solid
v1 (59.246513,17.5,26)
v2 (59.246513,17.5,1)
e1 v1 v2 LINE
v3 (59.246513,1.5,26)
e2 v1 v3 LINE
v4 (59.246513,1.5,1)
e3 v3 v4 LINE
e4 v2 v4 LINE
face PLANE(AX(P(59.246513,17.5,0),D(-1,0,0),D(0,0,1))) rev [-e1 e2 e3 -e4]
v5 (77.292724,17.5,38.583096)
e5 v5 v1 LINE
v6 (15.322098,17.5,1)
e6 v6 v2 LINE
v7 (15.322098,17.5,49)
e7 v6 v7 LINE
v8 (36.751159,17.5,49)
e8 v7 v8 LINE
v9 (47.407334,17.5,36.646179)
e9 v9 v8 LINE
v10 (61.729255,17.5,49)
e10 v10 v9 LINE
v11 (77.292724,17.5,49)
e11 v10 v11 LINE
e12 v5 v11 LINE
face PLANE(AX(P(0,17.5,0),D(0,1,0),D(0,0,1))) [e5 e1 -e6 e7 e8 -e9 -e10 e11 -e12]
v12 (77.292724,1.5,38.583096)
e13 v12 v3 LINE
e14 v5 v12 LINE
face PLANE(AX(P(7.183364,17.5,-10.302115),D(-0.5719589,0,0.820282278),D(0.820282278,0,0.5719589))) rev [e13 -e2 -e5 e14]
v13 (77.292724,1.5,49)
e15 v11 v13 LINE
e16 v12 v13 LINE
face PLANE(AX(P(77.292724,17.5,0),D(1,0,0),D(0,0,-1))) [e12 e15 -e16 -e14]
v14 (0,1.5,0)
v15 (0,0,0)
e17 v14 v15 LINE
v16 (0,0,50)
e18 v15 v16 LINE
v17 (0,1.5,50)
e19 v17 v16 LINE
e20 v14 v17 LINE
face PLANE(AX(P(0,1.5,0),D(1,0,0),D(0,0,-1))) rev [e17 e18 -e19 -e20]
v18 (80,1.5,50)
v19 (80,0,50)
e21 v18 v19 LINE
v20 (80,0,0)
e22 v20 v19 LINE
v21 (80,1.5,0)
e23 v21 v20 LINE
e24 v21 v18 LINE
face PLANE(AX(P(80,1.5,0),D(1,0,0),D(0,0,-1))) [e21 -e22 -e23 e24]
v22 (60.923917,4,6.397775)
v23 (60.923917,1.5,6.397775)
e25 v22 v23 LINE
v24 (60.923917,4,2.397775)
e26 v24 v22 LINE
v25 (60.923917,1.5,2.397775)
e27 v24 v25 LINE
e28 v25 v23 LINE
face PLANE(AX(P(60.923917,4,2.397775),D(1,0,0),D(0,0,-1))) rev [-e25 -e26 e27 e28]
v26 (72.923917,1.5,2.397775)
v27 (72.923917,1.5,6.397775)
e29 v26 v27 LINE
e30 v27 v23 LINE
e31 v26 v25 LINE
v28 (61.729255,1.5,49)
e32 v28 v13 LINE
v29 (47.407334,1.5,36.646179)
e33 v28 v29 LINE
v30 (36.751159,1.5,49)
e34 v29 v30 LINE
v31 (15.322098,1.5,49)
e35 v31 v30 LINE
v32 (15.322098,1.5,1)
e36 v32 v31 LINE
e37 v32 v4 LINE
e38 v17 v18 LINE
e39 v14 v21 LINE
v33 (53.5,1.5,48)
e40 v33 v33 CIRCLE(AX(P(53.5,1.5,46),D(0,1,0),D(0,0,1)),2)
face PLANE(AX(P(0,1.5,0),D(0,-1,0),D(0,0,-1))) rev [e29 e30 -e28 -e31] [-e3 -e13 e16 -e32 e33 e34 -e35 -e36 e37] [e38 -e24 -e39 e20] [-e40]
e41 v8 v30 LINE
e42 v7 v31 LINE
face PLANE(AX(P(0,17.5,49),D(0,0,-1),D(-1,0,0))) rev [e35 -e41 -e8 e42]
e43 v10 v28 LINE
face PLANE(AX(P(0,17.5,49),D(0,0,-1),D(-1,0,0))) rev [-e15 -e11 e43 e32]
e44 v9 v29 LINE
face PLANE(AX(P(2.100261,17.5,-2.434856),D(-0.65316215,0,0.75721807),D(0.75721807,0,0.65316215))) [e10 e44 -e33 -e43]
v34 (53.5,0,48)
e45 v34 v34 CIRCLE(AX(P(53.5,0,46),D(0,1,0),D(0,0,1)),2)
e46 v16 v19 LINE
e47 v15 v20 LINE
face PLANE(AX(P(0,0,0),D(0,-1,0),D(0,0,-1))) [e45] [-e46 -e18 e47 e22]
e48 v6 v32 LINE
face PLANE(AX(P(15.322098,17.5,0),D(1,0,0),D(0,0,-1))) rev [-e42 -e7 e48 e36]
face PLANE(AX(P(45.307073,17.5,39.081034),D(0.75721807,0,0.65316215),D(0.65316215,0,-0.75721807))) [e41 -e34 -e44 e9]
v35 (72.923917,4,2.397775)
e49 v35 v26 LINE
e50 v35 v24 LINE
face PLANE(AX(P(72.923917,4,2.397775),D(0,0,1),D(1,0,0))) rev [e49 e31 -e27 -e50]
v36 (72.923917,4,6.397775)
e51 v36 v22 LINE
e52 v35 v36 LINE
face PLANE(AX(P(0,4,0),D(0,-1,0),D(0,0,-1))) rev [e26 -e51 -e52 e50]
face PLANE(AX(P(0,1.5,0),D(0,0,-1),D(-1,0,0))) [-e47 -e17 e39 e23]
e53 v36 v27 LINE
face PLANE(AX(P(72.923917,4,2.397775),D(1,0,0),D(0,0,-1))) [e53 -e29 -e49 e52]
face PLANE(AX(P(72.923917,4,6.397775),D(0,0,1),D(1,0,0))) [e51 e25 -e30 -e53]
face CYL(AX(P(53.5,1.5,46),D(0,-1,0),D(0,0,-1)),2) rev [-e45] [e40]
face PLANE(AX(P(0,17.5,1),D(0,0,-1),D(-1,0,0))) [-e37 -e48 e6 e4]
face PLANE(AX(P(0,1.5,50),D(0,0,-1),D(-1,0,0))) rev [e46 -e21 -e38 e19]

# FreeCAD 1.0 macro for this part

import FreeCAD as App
import Part
import Sketcher

doc = App.newDocument("Part")
params = doc.addObject("Spreadsheet::Sheet", "Params")
for row, (alias, value) in enumerate([
    ("sketch1_diameter", "4 mm"),
    ("sketch1_width", "80 mm"),
    ("sketch1_height", "50 mm"),
    ("pad1_length", "1.5 mm"),
    ("sketch2_height", "25 mm"),
    ("sketch2_height2", "48 mm"),
    ("sketch2_length", "22 mm"),
    ("pad2_length", "17.5 mm"),
    ("sketch3_width", "12 mm"),
    ("sketch3_height", "4 mm"),
    ("pad3_length", "4 mm"),
], start=1):
    params.set(f"A{row}", alias)
    params.set(f"B{row}", "=" + value)
    params.setAlias(f"B{row}", alias)

body = doc.addObject("PartDesign::Body", "Body")

sketch1 = body.newObject("Sketcher::SketchObject", "Sketch")
sketch1.AttachmentSupport = (doc.getObject("XZ_Plane"), [""])
sketch1.MapMode = "FlatFace"
sketch1.addGeometry([
    Part.LineSegment(App.Vector(0, 0, 0), App.Vector(0, 50, 0)),
    Part.LineSegment(App.Vector(0, 50, 0), App.Vector(80, 50, 0)),
    Part.LineSegment(App.Vector(80, 50, 0), App.Vector(80, 0, 0)),
    Part.LineSegment(App.Vector(80, 0, 0), App.Vector(0, 0, 0)),
    Part.Circle(App.Vector(53.5, 46, 0), App.Vector(0, 0, 1), 2),
], False)
sketch1.addConstraint([
    Sketcher.Constraint("Coincident", 0, 2, 1, 1),
    Sketcher.Constraint("Coincident", 1, 2, 2, 1),
    Sketcher.Constraint("Coincident", 2, 2, 3, 1),
    Sketcher.Constraint("Coincident", 3, 2, 0, 1),
    Sketcher.Constraint("Vertical", 0),
    Sketcher.Constraint("Horizontal", 1),
    Sketcher.Constraint("Vertical", 2),
    Sketcher.Constraint("Horizontal", 3),
    Sketcher.Constraint("Coincident", 3, 2, -1, 1),
    Sketcher.Constraint("Diameter", 4, 4.0),
    Sketcher.Constraint("DistanceX", 1, 1, 1, 2, 80.0),
    Sketcher.Constraint("DistanceY", 0, 1, 0, 2, 50.0),
    Sketcher.Constraint("DistanceY", -1, 1, 4, 3, 46.0),
    Sketcher.Constraint("DistanceX", -1, 1, 4, 3, 53.5),
])
sketch1.setExpression("Constraints[9]", "Params.sketch1_diameter")
sketch1.setExpression("Constraints[10]", "Params.sketch1_width")
sketch1.setExpression("Constraints[11]", "Params.sketch1_height")
pad1 = body.newObject("PartDesign::Pad", "Pad")
pad1.Profile = sketch1
pad1.setExpression("Length", "Params.pad1_length")
pad1.Reversed = True

sketch2 = body.newObject("Sketcher::SketchObject", "Sketch001")
sketch2.AttachmentSupport = (doc.getObject("XZ_Plane"), [""])
sketch2.MapMode = "FlatFace"
sketch2.addGeometry([
    Part.LineSegment(App.Vector(47.407334, 36.646179, 0), App.Vector(61.729255, 49, 0)),
    Part.LineSegment(App.Vector(61.729255, 49, 0), App.Vector(77.292724, 49, 0)),
    Part.LineSegment(App.Vector(77.292724, 49, 0), App.Vector(77.292724, 38.583096, 0)),
    Part.LineSegment(App.Vector(77.292724, 38.583096, 0), App.Vector(59.246513, 26, 0)),
    Part.LineSegment(App.Vector(59.246513, 26, 0), App.Vector(59.246513, 1, 0)),
    Part.LineSegment(App.Vector(59.246513, 1, 0), App.Vector(15.322098, 1, 0)),
    Part.LineSegment(App.Vector(15.322098, 1, 0), App.Vector(15.322098, 49, 0)),
    Part.LineSegment(App.Vector(15.322098, 49, 0), App.Vector(36.751159, 49, 0)),
    Part.LineSegment(App.Vector(36.751159, 49, 0), App.Vector(47.407334, 36.646179, 0)),
], False)
sketch2.addConstraint([
    Sketcher.Constraint("Coincident", 0, 2, 1, 1),
    Sketcher.Constraint("Coincident", 1, 2, 2, 1),
    Sketcher.Constraint("Coincident", 2, 2, 3, 1),
    Sketcher.Constraint("Coincident", 3, 2, 4, 1),
    Sketcher.Constraint("Coincident", 4, 2, 5, 1),
    Sketcher.Constraint("Coincident", 5, 2, 6, 1),
    Sketcher.Constraint("Coincident", 6, 2, 7, 1),
    Sketcher.Constraint("Coincident", 7, 2, 8, 1),
    Sketcher.Constraint("Coincident", 8, 2, 0, 1),
    Sketcher.Constraint("Horizontal", 1),
    Sketcher.Constraint("Vertical", 2),
    Sketcher.Constraint("Vertical", 4),
    Sketcher.Constraint("Horizontal", 5),
    Sketcher.Constraint("Vertical", 6),
    Sketcher.Constraint("Horizontal", 7),
    Sketcher.Constraint("Perpendicular", 0, 8),
    Sketcher.Constraint("Horizontal", 1, 2, 6, 2),
    Sketcher.Constraint("DistanceY", 4, 2, 4, 1, 25.0),
    Sketcher.Constraint("DistanceY", 6, 1, 6, 2, 48.0),
    Sketcher.Constraint("Distance", 3, 22.0),
    Sketcher.Constraint("DistanceY", -1, 1, 0, 2, 49.0),
    Sketcher.Constraint("DistanceX", 1, 1, 1, 2, 15.563469),
    Sketcher.Constraint("DistanceX", 7, 1, 7, 2, 21.429061),
    Sketcher.Constraint("DistanceX", -1, 1, 5, 2, 15.322098),
    Sketcher.Constraint("DistanceX", 5, 2, 5, 1, 43.924415),
    Sketcher.Constraint("DistanceY", 2, 2, 2, 1, 10.416904),
    Sketcher.Constraint("DistanceY", -1, 1, 8, 2, 36.646179),
])
sketch2.setExpression("Constraints[17]", "Params.sketch2_height")
sketch2.setExpression("Constraints[18]", "Params.sketch2_height2")
sketch2.setExpression("Constraints[19]", "Params.sketch2_length")
pad2 = body.newObject("PartDesign::Pad", "Pad001")
pad2.Profile = sketch2
pad2.setExpression("Length", "Params.pad2_length")
pad2.Reversed = True

sketch3 = body.newObject("Sketcher::SketchObject", "Sketch002")
sketch3.AttachmentSupport = (doc.getObject("XZ_Plane"), [""])
sketch3.MapMode = "FlatFace"
sketch3.addGeometry([
    Part.LineSegment(App.Vector(60.923917, 2.397775, 0), App.Vector(60.923917, 6.397775, 0)),
    Part.LineSegment(App.Vector(60.923917, 6.397775, 0), App.Vector(72.923917, 6.397775, 0)),
    Part.LineSegment(App.Vector(72.923917, 6.397775, 0), App.Vector(72.923917, 2.397775, 0)),
    Part.LineSegment(App.Vector(72.923917, 2.397775, 0), App.Vector(60.923917, 2.397775, 0)),
], False)
sketch3.addConstraint([
    Sketcher.Constraint("Coincident", 0, 2, 1, 1),
    Sketcher.Constraint("Coincident", 1, 2, 2, 1),
    Sketcher.Constraint("Coincident", 2, 2, 3, 1),
    Sketcher.Constraint("Coincident", 3, 2, 0, 1),
    Sketcher.Constraint("Vertical", 0),
    Sketcher.Constraint("Horizontal", 1),
    Sketcher.Constraint("Vertical", 2),
    Sketcher.Constraint("Horizontal", 3),
    Sketcher.Constraint("DistanceX", 1, 1, 1, 2, 12.0),
    Sketcher.Constraint("DistanceY", 0, 1, 0, 2, 4.0),
    Sketcher.Constraint("DistanceX", -1, 1, 0, 2, 60.923917),
    Sketcher.Constraint("DistanceY", -1, 1, 0, 2, 6.397775),
])
sketch3.setExpression("Constraints[8]", "Params.sketch3_width")
sketch3.setExpression("Constraints[9]", "Params.sketch3_height")
pad3 = body.newObject("PartDesign::Pad", "Pad002")
pad3.Profile = sketch3
pad3.setExpression("Length", "Params.pad3_length")
pad3.Reversed = True

doc.recompute()
